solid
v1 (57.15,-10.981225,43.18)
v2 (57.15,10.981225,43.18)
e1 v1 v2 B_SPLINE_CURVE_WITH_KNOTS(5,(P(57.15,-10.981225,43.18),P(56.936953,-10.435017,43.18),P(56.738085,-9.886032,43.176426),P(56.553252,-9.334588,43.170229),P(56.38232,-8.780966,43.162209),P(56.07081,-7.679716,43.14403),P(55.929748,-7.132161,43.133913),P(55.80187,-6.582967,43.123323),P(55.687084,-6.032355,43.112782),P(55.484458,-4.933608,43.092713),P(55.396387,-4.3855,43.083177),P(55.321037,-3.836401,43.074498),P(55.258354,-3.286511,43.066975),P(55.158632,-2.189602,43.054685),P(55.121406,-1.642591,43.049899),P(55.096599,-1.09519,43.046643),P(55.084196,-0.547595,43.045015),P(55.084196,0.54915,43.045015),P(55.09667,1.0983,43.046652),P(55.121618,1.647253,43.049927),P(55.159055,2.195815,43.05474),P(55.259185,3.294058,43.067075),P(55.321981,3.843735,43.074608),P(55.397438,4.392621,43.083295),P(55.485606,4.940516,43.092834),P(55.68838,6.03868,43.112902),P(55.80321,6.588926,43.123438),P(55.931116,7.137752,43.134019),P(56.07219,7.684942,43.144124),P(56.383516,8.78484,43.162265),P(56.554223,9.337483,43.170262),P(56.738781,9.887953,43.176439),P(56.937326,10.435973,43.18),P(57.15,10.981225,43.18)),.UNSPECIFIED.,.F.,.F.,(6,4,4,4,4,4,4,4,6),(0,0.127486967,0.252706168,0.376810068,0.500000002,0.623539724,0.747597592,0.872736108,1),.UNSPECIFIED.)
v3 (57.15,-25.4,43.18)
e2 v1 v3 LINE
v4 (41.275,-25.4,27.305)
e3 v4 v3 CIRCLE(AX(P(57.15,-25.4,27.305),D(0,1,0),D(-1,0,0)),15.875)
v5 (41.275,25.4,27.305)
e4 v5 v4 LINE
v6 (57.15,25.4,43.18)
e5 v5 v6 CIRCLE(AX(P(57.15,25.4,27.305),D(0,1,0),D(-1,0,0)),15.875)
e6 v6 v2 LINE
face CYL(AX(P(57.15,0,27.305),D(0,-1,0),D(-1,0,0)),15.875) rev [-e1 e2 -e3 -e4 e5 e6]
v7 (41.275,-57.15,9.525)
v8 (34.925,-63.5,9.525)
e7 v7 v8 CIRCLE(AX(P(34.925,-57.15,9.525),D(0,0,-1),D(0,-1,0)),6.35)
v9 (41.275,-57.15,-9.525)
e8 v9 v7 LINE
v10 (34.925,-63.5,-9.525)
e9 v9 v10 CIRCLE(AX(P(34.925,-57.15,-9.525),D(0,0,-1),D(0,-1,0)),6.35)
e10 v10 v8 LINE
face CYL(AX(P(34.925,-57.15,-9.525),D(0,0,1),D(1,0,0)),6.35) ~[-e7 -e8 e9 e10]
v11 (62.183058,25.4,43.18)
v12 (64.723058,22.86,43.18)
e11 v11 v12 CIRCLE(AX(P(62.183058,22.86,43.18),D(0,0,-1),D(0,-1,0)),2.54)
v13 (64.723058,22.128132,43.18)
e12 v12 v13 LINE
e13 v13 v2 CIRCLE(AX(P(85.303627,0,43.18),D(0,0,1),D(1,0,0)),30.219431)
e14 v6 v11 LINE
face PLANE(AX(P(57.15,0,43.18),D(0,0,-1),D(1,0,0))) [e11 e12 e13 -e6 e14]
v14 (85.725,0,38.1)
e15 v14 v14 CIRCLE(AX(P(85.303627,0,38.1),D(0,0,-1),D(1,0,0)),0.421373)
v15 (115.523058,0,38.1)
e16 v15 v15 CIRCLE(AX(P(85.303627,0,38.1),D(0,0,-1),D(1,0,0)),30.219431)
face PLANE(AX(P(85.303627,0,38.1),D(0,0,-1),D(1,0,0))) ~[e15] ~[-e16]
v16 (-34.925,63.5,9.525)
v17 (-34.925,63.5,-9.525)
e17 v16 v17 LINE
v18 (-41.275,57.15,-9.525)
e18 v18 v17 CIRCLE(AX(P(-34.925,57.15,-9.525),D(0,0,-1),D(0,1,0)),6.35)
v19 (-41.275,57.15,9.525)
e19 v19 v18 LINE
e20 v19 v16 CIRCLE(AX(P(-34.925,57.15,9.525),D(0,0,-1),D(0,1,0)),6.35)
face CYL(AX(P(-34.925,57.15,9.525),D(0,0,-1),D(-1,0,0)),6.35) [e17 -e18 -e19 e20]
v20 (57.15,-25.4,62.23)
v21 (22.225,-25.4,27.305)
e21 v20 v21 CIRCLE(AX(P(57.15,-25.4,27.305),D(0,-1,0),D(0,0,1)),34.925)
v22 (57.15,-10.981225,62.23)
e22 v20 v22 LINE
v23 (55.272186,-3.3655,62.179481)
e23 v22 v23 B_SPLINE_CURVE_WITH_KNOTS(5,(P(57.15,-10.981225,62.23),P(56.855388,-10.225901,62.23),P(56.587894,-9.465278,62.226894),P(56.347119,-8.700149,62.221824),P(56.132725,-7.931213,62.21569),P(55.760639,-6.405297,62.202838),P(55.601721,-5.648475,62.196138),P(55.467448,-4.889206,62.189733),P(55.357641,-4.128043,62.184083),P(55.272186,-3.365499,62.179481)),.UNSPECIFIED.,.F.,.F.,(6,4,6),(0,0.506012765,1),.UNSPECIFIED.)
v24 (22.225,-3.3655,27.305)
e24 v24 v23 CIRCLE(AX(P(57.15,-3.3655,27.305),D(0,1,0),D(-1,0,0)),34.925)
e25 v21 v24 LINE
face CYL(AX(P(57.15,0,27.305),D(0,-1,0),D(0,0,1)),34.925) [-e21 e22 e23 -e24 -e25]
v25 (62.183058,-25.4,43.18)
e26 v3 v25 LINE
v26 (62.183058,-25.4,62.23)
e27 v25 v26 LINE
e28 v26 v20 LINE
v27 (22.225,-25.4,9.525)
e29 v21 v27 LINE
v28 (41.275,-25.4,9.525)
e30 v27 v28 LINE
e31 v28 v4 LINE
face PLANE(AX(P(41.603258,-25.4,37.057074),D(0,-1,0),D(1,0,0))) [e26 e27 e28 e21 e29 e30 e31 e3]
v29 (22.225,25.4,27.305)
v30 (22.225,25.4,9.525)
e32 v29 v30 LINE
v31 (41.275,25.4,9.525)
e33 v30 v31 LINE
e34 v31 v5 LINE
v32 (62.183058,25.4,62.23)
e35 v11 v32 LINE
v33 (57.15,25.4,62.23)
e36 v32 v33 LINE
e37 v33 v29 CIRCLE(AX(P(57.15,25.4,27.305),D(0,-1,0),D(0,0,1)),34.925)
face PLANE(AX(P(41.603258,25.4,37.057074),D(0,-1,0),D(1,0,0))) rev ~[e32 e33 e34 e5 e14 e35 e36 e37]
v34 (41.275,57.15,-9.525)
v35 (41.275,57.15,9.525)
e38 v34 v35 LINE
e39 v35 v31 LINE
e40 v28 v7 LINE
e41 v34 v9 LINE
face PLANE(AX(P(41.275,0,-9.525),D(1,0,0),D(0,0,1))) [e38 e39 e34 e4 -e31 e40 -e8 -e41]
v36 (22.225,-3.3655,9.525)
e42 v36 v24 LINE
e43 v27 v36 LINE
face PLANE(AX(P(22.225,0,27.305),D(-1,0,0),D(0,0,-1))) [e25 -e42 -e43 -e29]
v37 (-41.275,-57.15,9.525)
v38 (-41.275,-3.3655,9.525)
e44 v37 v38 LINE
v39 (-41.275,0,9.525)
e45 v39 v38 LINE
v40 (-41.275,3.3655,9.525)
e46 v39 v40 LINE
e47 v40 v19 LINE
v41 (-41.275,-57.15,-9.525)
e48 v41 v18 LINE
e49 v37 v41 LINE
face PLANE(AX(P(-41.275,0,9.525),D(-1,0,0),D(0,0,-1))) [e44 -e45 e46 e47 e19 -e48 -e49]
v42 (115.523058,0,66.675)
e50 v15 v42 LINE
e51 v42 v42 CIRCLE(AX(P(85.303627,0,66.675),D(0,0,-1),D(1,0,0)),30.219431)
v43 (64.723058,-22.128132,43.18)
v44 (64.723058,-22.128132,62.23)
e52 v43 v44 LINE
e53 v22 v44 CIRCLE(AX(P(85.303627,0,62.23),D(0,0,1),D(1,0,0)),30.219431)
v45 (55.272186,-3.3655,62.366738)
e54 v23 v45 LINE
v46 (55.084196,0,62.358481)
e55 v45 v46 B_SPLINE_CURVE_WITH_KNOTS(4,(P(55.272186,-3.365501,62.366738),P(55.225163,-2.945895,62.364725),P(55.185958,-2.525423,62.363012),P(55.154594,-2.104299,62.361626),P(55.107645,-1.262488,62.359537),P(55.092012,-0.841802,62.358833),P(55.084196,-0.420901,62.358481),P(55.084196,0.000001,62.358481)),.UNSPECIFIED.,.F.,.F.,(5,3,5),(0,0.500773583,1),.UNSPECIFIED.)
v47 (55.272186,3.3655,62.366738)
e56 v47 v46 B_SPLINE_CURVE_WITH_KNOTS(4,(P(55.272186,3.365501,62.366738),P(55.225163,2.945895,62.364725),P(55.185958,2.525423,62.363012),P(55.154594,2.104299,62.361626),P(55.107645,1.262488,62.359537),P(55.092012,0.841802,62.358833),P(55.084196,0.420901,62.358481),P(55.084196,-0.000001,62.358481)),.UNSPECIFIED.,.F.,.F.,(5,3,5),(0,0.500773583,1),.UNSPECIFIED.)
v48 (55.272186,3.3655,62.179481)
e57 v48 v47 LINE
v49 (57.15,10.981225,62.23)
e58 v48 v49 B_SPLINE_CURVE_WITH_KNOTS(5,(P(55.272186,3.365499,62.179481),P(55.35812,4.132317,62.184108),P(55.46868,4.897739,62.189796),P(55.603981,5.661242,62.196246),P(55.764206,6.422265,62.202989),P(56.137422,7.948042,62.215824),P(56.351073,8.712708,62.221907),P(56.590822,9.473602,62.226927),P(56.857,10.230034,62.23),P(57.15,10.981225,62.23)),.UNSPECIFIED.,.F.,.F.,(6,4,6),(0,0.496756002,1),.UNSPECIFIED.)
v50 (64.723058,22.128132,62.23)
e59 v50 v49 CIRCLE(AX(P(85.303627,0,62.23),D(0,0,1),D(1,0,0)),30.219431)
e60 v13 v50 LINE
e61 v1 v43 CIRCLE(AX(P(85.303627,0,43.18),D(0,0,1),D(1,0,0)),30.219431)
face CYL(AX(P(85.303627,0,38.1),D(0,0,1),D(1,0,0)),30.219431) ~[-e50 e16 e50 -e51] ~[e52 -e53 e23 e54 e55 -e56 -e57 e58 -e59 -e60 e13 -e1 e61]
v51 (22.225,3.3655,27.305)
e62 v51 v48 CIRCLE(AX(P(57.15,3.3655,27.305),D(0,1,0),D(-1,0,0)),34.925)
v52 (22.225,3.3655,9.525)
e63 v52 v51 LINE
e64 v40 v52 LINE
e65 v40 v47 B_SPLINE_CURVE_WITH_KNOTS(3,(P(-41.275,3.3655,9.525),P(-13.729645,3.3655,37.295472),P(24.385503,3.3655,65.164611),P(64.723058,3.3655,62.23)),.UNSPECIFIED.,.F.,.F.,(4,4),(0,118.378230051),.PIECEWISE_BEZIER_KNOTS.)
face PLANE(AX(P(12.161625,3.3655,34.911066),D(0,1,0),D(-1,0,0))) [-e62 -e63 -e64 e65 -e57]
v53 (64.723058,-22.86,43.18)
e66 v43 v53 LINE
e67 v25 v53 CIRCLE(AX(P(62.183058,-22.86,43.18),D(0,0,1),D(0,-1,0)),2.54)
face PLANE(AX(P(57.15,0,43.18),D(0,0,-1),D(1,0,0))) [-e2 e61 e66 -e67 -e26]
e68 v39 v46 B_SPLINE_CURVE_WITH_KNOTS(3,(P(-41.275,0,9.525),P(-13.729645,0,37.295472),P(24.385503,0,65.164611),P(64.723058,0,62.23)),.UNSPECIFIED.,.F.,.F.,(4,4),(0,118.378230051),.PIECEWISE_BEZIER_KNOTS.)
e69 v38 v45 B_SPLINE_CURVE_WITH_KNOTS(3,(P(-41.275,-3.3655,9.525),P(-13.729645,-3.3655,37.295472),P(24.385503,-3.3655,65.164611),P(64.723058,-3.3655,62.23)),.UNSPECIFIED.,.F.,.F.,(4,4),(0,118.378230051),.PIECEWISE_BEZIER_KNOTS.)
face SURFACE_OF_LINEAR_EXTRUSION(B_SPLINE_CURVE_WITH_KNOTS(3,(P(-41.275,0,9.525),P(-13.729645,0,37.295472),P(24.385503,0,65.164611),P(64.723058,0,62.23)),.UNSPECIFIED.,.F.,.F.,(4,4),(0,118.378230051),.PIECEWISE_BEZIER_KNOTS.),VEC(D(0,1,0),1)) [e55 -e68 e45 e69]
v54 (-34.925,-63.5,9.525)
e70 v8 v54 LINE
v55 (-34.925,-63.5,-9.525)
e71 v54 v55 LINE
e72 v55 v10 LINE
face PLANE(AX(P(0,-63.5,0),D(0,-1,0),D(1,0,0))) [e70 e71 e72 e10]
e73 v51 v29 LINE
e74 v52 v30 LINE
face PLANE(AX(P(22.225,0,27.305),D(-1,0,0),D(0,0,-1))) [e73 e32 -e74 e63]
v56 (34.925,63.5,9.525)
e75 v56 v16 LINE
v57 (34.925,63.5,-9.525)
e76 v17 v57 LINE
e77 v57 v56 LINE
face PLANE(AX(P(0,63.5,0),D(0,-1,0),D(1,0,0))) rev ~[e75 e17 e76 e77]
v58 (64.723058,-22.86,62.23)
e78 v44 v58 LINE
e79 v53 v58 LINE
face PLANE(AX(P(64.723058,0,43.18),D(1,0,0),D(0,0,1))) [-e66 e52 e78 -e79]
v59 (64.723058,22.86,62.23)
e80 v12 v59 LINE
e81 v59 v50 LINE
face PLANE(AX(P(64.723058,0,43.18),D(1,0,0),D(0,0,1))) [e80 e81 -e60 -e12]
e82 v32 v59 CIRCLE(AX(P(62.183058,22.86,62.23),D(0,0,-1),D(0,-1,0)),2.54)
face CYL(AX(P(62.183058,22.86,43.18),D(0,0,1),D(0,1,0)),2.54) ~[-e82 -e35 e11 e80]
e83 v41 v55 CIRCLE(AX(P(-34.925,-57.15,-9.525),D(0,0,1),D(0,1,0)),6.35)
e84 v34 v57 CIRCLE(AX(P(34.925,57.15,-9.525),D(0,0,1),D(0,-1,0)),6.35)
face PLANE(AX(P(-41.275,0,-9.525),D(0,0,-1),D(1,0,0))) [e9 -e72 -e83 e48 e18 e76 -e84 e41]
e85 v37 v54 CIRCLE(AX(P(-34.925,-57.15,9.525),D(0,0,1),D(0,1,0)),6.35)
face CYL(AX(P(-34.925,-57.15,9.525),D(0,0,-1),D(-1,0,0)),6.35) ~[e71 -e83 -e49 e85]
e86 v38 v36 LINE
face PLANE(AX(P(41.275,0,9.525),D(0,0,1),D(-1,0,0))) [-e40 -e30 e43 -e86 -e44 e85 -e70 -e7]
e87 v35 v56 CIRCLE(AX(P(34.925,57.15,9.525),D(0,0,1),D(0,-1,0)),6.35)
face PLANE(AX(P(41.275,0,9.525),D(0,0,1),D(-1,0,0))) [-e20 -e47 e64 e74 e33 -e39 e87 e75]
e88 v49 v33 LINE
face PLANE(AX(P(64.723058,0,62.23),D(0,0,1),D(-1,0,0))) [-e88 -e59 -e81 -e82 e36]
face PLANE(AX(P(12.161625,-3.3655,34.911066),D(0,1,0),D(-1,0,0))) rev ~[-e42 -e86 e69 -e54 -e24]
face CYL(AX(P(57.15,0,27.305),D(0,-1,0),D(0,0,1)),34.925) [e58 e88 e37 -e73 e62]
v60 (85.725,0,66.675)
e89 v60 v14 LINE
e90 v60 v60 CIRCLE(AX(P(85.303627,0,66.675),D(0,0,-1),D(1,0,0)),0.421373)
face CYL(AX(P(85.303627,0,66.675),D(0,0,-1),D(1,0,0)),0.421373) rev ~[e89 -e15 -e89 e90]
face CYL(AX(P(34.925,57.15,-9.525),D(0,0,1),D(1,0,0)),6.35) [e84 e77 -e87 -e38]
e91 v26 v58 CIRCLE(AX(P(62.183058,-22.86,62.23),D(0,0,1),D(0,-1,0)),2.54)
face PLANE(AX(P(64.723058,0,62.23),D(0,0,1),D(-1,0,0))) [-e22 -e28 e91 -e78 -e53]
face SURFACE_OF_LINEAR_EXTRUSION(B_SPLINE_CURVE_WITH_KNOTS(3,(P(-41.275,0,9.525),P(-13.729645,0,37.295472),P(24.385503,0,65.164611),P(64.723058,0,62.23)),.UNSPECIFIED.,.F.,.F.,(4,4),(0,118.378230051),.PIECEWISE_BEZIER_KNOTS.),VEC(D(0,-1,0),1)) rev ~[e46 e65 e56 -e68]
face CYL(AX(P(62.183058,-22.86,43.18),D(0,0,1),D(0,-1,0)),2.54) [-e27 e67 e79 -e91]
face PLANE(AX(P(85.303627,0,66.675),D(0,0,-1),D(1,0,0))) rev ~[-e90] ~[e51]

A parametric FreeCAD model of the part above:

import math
import FreeCAD as App
import Part
import Sketcher

V = App.Vector
Q = App.Units.Quantity


def edges_at(feature, points):
    """Names of the edges that pass closest to the given points."""
    edges = feature.Shape.Edges
    near = lambda p: min(range(len(edges)), key=lambda i: edges[i].distToShape(Part.Vertex(*p))[0])
    return sorted({f"Edge{near(p) + 1}" for p in points})

doc = App.newDocument("Part")
params = doc.addObject("Spreadsheet::Sheet", "Params")
for row, (alias, value) in enumerate([
    ("sketch1_width", "3.25 in"),
    ("sketch1_height", "0.75 in"),
    ("pad1_length", "5 in"),
    ("sketch2_height", "0.7 in"),
    ("sketch2_radius", "0.625 in"),
    ("sketch2_radius2", "1.375 in"),
    ("pad2_length", "2 in"),
    ("sketch3_width", "2.5 in"),
    ("sketch3_height", "0.7 in"),
    ("sketch3_radius", "1.375 in"),
    ("pad3_length", "0.265 in"),
    ("sketch4_height", "1.125 in"),
    ("revolution_angle", "360 deg"),
    ("fillet_radius", "0.25 in"),
    ("fillet2_radius", "0.1 in"),
    ("fillet3_radius", "0.1 in"),
], start=1):
    params.set(f"A{row}", alias)
    params.set(f"B{row}", "=" + value)
    params.setAlias(f"B{row}", alias)

body = doc.addObject("PartDesign::Body", "Body")

# Sketch on XZ plane
sketch1 = body.newObject("Sketcher::SketchObject", "Sketch")
sketch1.AttachmentSupport = (doc.getObject("XZ_Plane"), [""])
sketch1.MapMode = "FlatFace"
sketch1.addGeometry([
    Part.LineSegment(V(-41.275, -9.525, 0), V(41.275, -9.525, 0)),
    Part.LineSegment(V(41.275, -9.525, 0), V(41.275, 9.525, 0)),
    Part.LineSegment(V(41.275, 9.525, 0), V(-41.275, 9.525, 0)),
    Part.LineSegment(V(-41.275, 9.525, 0), V(-41.275, -9.525, 0)),
], False)
sketch1.addConstraint([
    Sketcher.Constraint("Coincident", 0, 2, 1, 1),
    Sketcher.Constraint("Coincident", 1, 2, 2, 1),
    Sketcher.Constraint("Coincident", 2, 2, 3, 1),
    Sketcher.Constraint("Coincident", 3, 2, 0, 1),
    Sketcher.Constraint("Horizontal", 0),
    Sketcher.Constraint("Vertical", 1),
    Sketcher.Constraint("Horizontal", 2),
    Sketcher.Constraint("Vertical", 3),
    Sketcher.Constraint("Symmetric", 0, 2, 2, 2, -1, 1),
    Sketcher.Constraint("DistanceX", 0, 1, 0, 2, Q("3.25 in")),
    Sketcher.Constraint("DistanceY", 1, 1, 1, 2, Q("0.75 in")),
])
sketch1.setExpression("Constraints[9]", "Params.sketch1_width")
sketch1.setExpression("Constraints[10]", "Params.sketch1_height")
pad1 = body.newObject("PartDesign::Pad", "Pad")
pad1.Profile = sketch1
pad1.setExpression("Length", "Params.pad1_length")
pad1.Midplane = True

# Sketch on XZ plane
sketch2 = body.newObject("Sketcher::SketchObject", "Sketch001")
sketch2.AttachmentSupport = (doc.getObject("XZ_Plane"), [""])
sketch2.MapMode = "FlatFace"
sketch2.addGeometry([
    Part.LineSegment(V(22.225, 9.525, 0), V(41.275, 9.525, 0)),  # 0
    Part.LineSegment(V(41.275, 9.525, 0), V(41.275, 27.305, 0)),  # 1
    Part.ArcOfCircle(Part.Circle(V(57.15, 27.305, 0), V(0, 0, 1), 15.875), math.radians(90), math.radians(180)),  # 2
    Part.LineSegment(V(57.15, 43.18, 0), V(64.723058, 43.18, 0)),  # 3
    Part.LineSegment(V(64.723058, 43.18, 0), V(64.723058, 62.23, 0)),  # 4
    Part.LineSegment(V(64.723058, 62.23, 0), V(57.15, 62.23, 0)),  # 5
    Part.ArcOfCircle(Part.Circle(V(57.15, 27.305, 0), V(0, 0, 1), 34.925), math.radians(90), math.radians(180)),  # 6
    Part.LineSegment(V(22.225, 27.305, 0), V(22.225, 9.525, 0)),  # 7
], False)
sketch2.addConstraint([
    Sketcher.Constraint("Coincident", 0, 2, 1, 1),
    Sketcher.Constraint("Tangent", 1, 2, 2, 2),
    Sketcher.Constraint("Tangent", 2, 1, 3, 1),
    Sketcher.Constraint("Coincident", 3, 2, 4, 1),
    Sketcher.Constraint("Coincident", 4, 2, 5, 1),
    Sketcher.Constraint("Tangent", 5, 2, 6, 1),
    Sketcher.Constraint("Tangent", 6, 2, 7, 1),
    Sketcher.Constraint("Coincident", 7, 2, 0, 1),
    Sketcher.Constraint("Horizontal", 0),
    Sketcher.Constraint("Vertical", 1),
    Sketcher.Constraint("Horizontal", 3),
    Sketcher.Constraint("Vertical", 4),
    Sketcher.Constraint("Horizontal", 5),
    Sketcher.Constraint("Vertical", 7),
    Sketcher.Constraint("Coincident", 6, 3, 2, 3),
    Sketcher.Constraint("DistanceY", 1, 1, 1, 2, Q("0.7 in")),
    Sketcher.Constraint("Radius", 2, Q("0.625 in")),
    Sketcher.Constraint("Radius", 6, Q("1.375 in")),
    Sketcher.Constraint("DistanceY", -1, 1, 2, 1, Q("1.7 in")),
    Sketcher.Constraint("DistanceX", -1, 1, 2, 3, Q("2.25 in")),
    Sketcher.Constraint("DistanceX", 3, 1, 3, 2, Q("7.573058 mm")),
])
sketch2.setExpression("Constraints[15]", "Params.sketch2_height")
sketch2.setExpression("Constraints[16]", "Params.sketch2_radius")
sketch2.setExpression("Constraints[17]", "Params.sketch2_radius2")
pad2 = body.newObject("PartDesign::Pad", "Pad001")
pad2.Profile = sketch2
pad2.setExpression("Length", "Params.pad2_length")
pad2.Midplane = True

# Sketch on XZ plane
sketch3 = body.newObject("Sketcher::SketchObject", "Sketch002")
sketch3.AttachmentSupport = (doc.getObject("XZ_Plane"), [""])
sketch3.MapMode = "FlatFace"
sketch3.addGeometry([
    Part.BSplineCurve([V(-41.275, 9.525, 0), V(-13.729645, 37.295472, 0), V(24.385503, 65.164611, 0), V(64.723058, 62.23, 0)], [4, 4], [0, 118.378230051], False, 3, [1, 1, 1, 1], False),  # 0
    Part.LineSegment(V(-41.275, 9.525, 0), V(22.225, 9.525, 0)),  # 1
    Part.LineSegment(V(22.225, 9.525, 0), V(22.225, 27.305, 0)),  # 2
    Part.ArcOfCircle(Part.Circle(V(57.15, 27.305, 0), V(0, 0, 1), 34.925), math.radians(90), math.radians(180)),  # 3
    Part.LineSegment(V(57.15, 62.23, 0), V(64.723058, 62.23, 0)),  # 4
], False)
sketch3.addConstraint([
    Sketcher.Constraint("Block", 0),
    Sketcher.Constraint("Coincident", 0, 1, 1, 1),
    Sketcher.Constraint("Coincident", 1, 2, 2, 1),
    Sketcher.Constraint("Coincident", 2, 2, 3, 2),
    Sketcher.Constraint("Coincident", 3, 1, 4, 1),
    Sketcher.Constraint("Coincident", 4, 2, 0, 2),
    Sketcher.Constraint("Horizontal", 1),
    Sketcher.Constraint("Vertical", 2),
    Sketcher.Constraint("Horizontal", 4),
    Sketcher.Constraint("DistanceX", 1, 1, 1, 2, Q("2.5 in")),
    Sketcher.Constraint("DistanceY", 2, 1, 2, 2, Q("0.7 in")),
    Sketcher.Constraint("Radius", 3, Q("1.375 in")),
    Sketcher.Constraint("DistanceX", -1, 1, 3, 1, Q("2.25 in")),
])
sketch3.setExpression("Constraints[9]", "Params.sketch3_width")
sketch3.setExpression("Constraints[10]", "Params.sketch3_height")
sketch3.setExpression("Constraints[11]", "Params.sketch3_radius")
pad3 = body.newObject("PartDesign::Pad", "Pad002")
pad3.Profile = sketch3
pad3.setExpression("Length", "Params.pad3_length")
pad3.Midplane = True

# Sketch on XZ plane
sketch4 = body.newObject("Sketcher::SketchObject", "Sketch003")
sketch4.AttachmentSupport = (doc.getObject("XZ_Plane"), [""])
sketch4.MapMode = "FlatFace"
sketch4.addGeometry([
    Part.LineSegment(V(85.725, 66.675, 0), V(85.725, 38.1, 0)),
    Part.LineSegment(V(85.725, 38.1, 0), V(115.523058, 38.1, 0)),
    Part.LineSegment(V(115.523058, 38.1, 0), V(115.523058, 66.675, 0)),
    Part.LineSegment(V(115.523058, 66.675, 0), V(85.725, 66.675, 0)),
], False)
sketch4.addGeometry(Part.LineSegment(V(85.303627, 66.675, 0), V(85.303627, 38.1, 0)), True)  # axis
sketch4.addConstraint([
    Sketcher.Constraint("Coincident", 0, 2, 1, 1),
    Sketcher.Constraint("Coincident", 1, 2, 2, 1),
    Sketcher.Constraint("Coincident", 2, 2, 3, 1),
    Sketcher.Constraint("Coincident", 3, 2, 0, 1),
    Sketcher.Constraint("Vertical", 0),
    Sketcher.Constraint("Horizontal", 1),
    Sketcher.Constraint("Vertical", 2),
    Sketcher.Constraint("Horizontal", 3),
    Sketcher.Constraint("Vertical", 4),
    Sketcher.Constraint("Horizontal", 3, 2, 4, 1),
    Sketcher.Constraint("Horizontal", 1, 2, 4, 2),
    Sketcher.Constraint("DistanceY", -1, 1, 0, 2, Q("1.5 in")),
    Sketcher.Constraint("DistanceY", 0, 2, 0, 1, Q("1.125 in")),
    Sketcher.Constraint("DistanceX", -1, 1, 0, 2, Q("3.375 in")),
    Sketcher.Constraint("DistanceX", 1, 1, 1, 2, Q("29.798058 mm")),
    Sketcher.Constraint("DistanceX", 4, 1, 2, 2, Q("30.219431 mm")),
])
sketch4.setExpression("Constraints[12]", "Params.sketch4_height")
revolution = body.newObject("PartDesign::Revolution", "Revolution")
revolution.Profile = sketch4
revolution.ReferenceAxis = (sketch4, ["Axis0"])
revolution.setExpression("Angle", "Params.revolution_angle")
doc.recompute()

fillet = body.newObject("PartDesign::Fillet", "Fillet")
fillet.Base = (revolution, edges_at(revolution, [
    (-41.275, -63.5, 0),
    (41.275, -63.5, 0),
    (41.275, 63.5, 0),
    (-41.275, 63.5, 0),
]))
fillet.setExpression("Radius", "Params.fillet_radius")
doc.recompute()

fillet2 = body.newObject("PartDesign::Fillet", "Fillet001")
fillet2.Base = (fillet, edges_at(fillet, [(64.723, -25.4, 52.705)]))
fillet2.setExpression("Radius", "Params.fillet2_radius")
doc.recompute()

fillet3 = body.newObject("PartDesign::Fillet", "Fillet002")
fillet3.Base = (fillet2, edges_at(fillet2, [(64.723, 25.4, 52.705)]))
fillet3.setExpression("Radius", "Params.fillet3_radius")

doc.recompute()
